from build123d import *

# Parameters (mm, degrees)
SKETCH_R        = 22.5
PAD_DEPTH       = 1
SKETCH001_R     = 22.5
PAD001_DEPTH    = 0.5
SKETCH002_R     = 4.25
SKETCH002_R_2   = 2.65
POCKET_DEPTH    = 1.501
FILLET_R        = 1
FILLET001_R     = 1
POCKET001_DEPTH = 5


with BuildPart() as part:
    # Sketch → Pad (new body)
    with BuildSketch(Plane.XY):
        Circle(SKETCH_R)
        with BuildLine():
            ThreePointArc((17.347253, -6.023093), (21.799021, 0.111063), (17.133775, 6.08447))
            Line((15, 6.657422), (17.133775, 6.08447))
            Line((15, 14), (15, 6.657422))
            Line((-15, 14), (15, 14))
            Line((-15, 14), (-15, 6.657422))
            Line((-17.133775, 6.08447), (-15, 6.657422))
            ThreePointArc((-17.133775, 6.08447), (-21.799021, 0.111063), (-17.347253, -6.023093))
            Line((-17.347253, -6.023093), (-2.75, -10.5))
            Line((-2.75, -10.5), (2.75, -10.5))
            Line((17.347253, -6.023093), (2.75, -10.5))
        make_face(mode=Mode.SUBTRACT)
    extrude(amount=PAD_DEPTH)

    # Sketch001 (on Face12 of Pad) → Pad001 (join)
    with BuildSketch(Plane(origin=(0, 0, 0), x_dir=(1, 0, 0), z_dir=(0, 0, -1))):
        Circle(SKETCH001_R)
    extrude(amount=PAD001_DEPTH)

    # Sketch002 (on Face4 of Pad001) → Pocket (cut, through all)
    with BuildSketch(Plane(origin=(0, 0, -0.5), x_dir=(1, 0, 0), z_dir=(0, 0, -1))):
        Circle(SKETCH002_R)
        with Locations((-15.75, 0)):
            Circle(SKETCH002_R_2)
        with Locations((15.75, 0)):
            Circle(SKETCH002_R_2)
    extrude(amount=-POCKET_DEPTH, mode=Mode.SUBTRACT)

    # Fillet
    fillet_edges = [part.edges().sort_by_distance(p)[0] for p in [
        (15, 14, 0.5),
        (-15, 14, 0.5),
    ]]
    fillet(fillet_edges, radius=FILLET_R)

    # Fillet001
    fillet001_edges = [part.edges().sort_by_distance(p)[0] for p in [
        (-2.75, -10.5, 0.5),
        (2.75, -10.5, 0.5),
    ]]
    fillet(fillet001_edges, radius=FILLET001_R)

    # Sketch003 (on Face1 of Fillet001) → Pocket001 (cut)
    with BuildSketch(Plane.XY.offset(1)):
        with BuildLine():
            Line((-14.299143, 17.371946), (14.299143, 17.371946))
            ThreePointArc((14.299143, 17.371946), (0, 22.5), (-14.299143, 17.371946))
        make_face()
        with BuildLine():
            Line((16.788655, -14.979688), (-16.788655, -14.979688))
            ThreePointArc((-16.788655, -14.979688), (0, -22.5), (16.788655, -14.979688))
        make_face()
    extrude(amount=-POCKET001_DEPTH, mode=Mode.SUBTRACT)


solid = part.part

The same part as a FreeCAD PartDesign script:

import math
import FreeCAD as App
import Part
import Sketcher
Q = App.Units.Quantity


def edges_at(feature, points):
    """Names of the edges that pass closest to the given points."""
    edges = feature.Shape.Edges
    near = lambda p: min(range(len(edges)), key=lambda i: edges[i].distToShape(Part.Vertex(*p))[0])
    return sorted({f"Edge{near(p) + 1}" for p in points})

doc = App.newDocument("Part")
body = doc.addObject("PartDesign::Body", "Body")

# Sketch on XY plane
sketch1 = body.newObject("Sketcher::SketchObject", "Sketch")
sketch1.AttachmentSupport = (doc.getObject("XY_Plane"), [""])
sketch1.MapMode = "FlatFace"
sketch1.addGeometry(Part.Circle(App.Vector(0, 0, 0), App.Vector(0, 0, 1), 22.5), False)
sketch1.addGeometry(Part.ArcOfCircle(Part.Circle(App.Vector(15.5, 0, 0), App.Vector(0, 0, 1), 6.3), math.radians(-73), math.radians(75)), False)
sketch1.addGeometry(Part.LineSegment(App.Vector(17.3, -6, 0), App.Vector(2.8, -10.5, 0)), False)
sketch1.addGeometry(Part.LineSegment(App.Vector(2.8, -10.5, 0), App.Vector(-2.8, -10.5, 0)), False)
sketch1.addGeometry(Part.LineSegment(App.Vector(-2.8, -10.5, 0), App.Vector(-17.3, -6, 0)), False)
sketch1.addGeometry(Part.ArcOfCircle(Part.Circle(App.Vector(-15.5, 0, 0), App.Vector(0, 0, 1), 6.3), math.radians(105), math.radians(253)), False)
sketch1.addGeometry(Part.LineSegment(App.Vector(-17.1, 6.1, 0), App.Vector(-15, 6.7, 0)), False)
sketch1.addGeometry(Part.LineSegment(App.Vector(-15, 6.7, 0), App.Vector(-15, 14, 0)), False)
sketch1.addGeometry(Part.LineSegment(App.Vector(-15, 14, 0), App.Vector(15, 14, 0)), False)
sketch1.addGeometry(Part.LineSegment(App.Vector(15, 14, 0), App.Vector(15, 6.7, 0)), False)
sketch1.addGeometry(Part.LineSegment(App.Vector(15, 6.7, 0), App.Vector(17.1, 6.1, 0)), False)
sketch1.addConstraint(Sketcher.Constraint("Tangent", 1, 1, 2, 1))
sketch1.addConstraint(Sketcher.Constraint("Coincident", 2, 2, 3, 1))
sketch1.addConstraint(Sketcher.Constraint("Coincident", 3, 2, 4, 1))
sketch1.addConstraint(Sketcher.Constraint("Tangent", 4, 2, 5, 2))
sketch1.addConstraint(Sketcher.Constraint("Tangent", 5, 1, 6, 1))
sketch1.addConstraint(Sketcher.Constraint("Coincident", 6, 2, 7, 1))
sketch1.addConstraint(Sketcher.Constraint("Coincident", 7, 2, 8, 1))
sketch1.addConstraint(Sketcher.Constraint("Coincident", 8, 2, 9, 1))
sketch1.addConstraint(Sketcher.Constraint("Coincident", 9, 2, 10, 1))
sketch1.addConstraint(Sketcher.Constraint("Tangent", 10, 2, 1, 2))
sketch1.addConstraint(Sketcher.Constraint("Horizontal", 3))
sketch1.addConstraint(Sketcher.Constraint("Vertical", 7))
sketch1.addConstraint(Sketcher.Constraint("Horizontal", 8))
sketch1.addConstraint(Sketcher.Constraint("Vertical", 9))
sketch1.addConstraint(Sketcher.Constraint("Coincident", 0, 3, -1, 1))
sketch1.addConstraint(Sketcher.Constraint("Equal", 1, 5))
sketch1.addConstraint(Sketcher.Constraint("Symmetric", 1, 3, 5, 3, -1, 1))
sketch1.addConstraint(Sketcher.Constraint("Symmetric", 1, 1, 4, 2, -2))
sketch1.addConstraint(Sketcher.Constraint("Symmetric", 6, 2, 9, 2, -2))
sketch1.addConstraint(Sketcher.Constraint("Diameter", 0, Q("45 mm")))
sketch1.addConstraint(Sketcher.Constraint("Radius", 1, Q("6.299999 mm")))
sketch1.addConstraint(Sketcher.Constraint("DistanceX", 8, 1, 8, 2, Q("30 mm")))
sketch1.addConstraint(Sketcher.Constraint("DistanceX", 3, 2, 3, 1, Q("5.5 mm")))
sketch1.addConstraint(Sketcher.Constraint("DistanceY", -1, 1, 7, 2, Q("14 mm")))
sketch1.addConstraint(Sketcher.Constraint("DistanceX", 5, 3, 1, 3, Q("31.000001 mm")))
sketch1.addConstraint(Sketcher.Constraint("DistanceY", 2, 2, -1, 1, Q("10.5 mm")))
sketch1.addConstraint(Sketcher.Constraint("Distance", 6, Q("2.20936 mm")))
pad1 = body.newObject("PartDesign::Pad", "Pad")
pad1.Profile = sketch1
pad1.Length = 1

# Sketch on XY plane
sketch2 = body.newObject("Sketcher::SketchObject", "Sketch001")
sketch2.AttachmentSupport = (doc.getObject("XY_Plane"), [""])
sketch2.MapMode = "FlatFace"
sketch2.addGeometry(Part.Circle(App.Vector(0, 0, 0), App.Vector(0, 0, 1), 22), False)
sketch2.addConstraint(Sketcher.Constraint("Coincident", 0, 3, -1, 1))
sketch2.addConstraint(Sketcher.Constraint("Diameter", 0, Q("45 mm")))
pad2 = body.newObject("PartDesign::Pad", "Pad001")
pad2.Profile = sketch2
pad2.Length = 0.5
pad2.Reversed = True

# Sketch on XY plane
sketch3 = body.newObject("Sketcher::SketchObject", "Sketch002")
sketch3.AttachmentSupport = (doc.getObject("XY_Plane"), [""])
sketch3.MapMode = "FlatFace"
sketch3.AttachmentOffset = App.Placement(App.Vector(0, 0, -0.5), App.Rotation())
sketch3.addGeometry(Part.Circle(App.Vector(0, 0, 0), App.Vector(0, 0, 1), 4.2), False)
sketch3.addGeometry(Part.Circle(App.Vector(-15.8, 0, 0), App.Vector(0, 0, 1), 2.6), False)
sketch3.addGeometry(Part.Circle(App.Vector(15.8, 0, 0), App.Vector(0, 0, 1), 2.6), False)
sketch3.addConstraint(Sketcher.Constraint("Coincident", 0, 3, -1, 1))
sketch3.addConstraint(Sketcher.Constraint("Equal", 1, 2))
sketch3.addConstraint(Sketcher.Constraint("Symmetric", 1, 3, 2, 3, -1, 1))
sketch3.addConstraint(Sketcher.Constraint("PointOnObject", 1, 3, -1))
sketch3.addConstraint(Sketcher.Constraint("Diameter", 0, Q("8.5 mm")))
sketch3.addConstraint(Sketcher.Constraint("Diameter", 1, Q("5.3 mm")))
sketch3.addConstraint(Sketcher.Constraint("DistanceX", 1, 3, 2, 3, Q("31.5 mm")))
pocket1 = body.newObject("PartDesign::Pocket", "Pocket")
pocket1.Profile = sketch3
pocket1.Type = "ThroughAll"
pocket1.Reversed = True
doc.recompute()

fillet = body.newObject("PartDesign::Fillet", "Fillet")
fillet.Base = (pocket1, edges_at(pocket1, [(15, 14, 0.5), (-15, 14, 0.5)]))
fillet.Radius = 1
doc.recompute()

fillet2 = body.newObject("PartDesign::Fillet", "Fillet001")
fillet2.Base = (fillet, edges_at(fillet, [(-2.75, -10.5, 0.5), (2.75, -10.5, 0.5)]))
fillet2.Radius = 1

# Sketch on XY plane
sketch4 = body.newObject("Sketcher::SketchObject", "Sketch003")
sketch4.AttachmentSupport = (doc.getObject("XY_Plane"), [""])
sketch4.MapMode = "FlatFace"
sketch4.AttachmentOffset = App.Placement(App.Vector(0, 0, 1), App.Rotation())
sketch4.addGeometry(Part.LineSegment(App.Vector(-14, 17, 0), App.Vector(14, 17, 0)), False)
sketch4.addGeometry(Part.ArcOfCircle(Part.Circle(App.Vector(0, 0, 0), App.Vector(0, 0, 1), 22), math.radians(51), math.radians(129)), False)
sketch4.addGeometry(Part.LineSegment(App.Vector(17, -15, 0), App.Vector(-17, -15, 0)), False)
sketch4.addGeometry(Part.ArcOfCircle(Part.Circle(App.Vector(0, 0, 0), App.Vector(0, 0, 1), 22), math.radians(-138), math.radians(-42)), False)
sketch4.addConstraint(Sketcher.Constraint("Coincident", 0, 1, 1, 2))
sketch4.addConstraint(Sketcher.Constraint("Coincident", 1, 1, 0, 2))
sketch4.addConstraint(Sketcher.Constraint("Coincident", 2, 1, 3, 2))
sketch4.addConstraint(Sketcher.Constraint("Coincident", 3, 1, 2, 2))
sketch4.addConstraint(Sketcher.Constraint("Horizontal", 0))
sketch4.addConstraint(Sketcher.Constraint("Horizontal", 2))
sketch4.addConstraint(Sketcher.Constraint("Coincident", 1, 3, -1, 1))
sketch4.addConstraint(Sketcher.Constraint("Coincident", 3, 3, -1, 1))
sketch4.addConstraint(Sketcher.Constraint("Equal", 1, 3))
sketch4.addConstraint(Sketcher.Constraint("Radius", 1, Q("22.5 mm")))
sketch4.addConstraint(Sketcher.Constraint("DistanceX", 2, 2, 2, 1, Q("33.57731 mm")))
sketch4.addConstraint(Sketcher.Constraint("DistanceX", 3, 1, 1, 1, Q("31.087798 mm")))
pocket2 = body.newObject("PartDesign::Pocket", "Pocket001")
pocket2.Profile = sketch4
pocket2.Length = 5

doc.recompute()
